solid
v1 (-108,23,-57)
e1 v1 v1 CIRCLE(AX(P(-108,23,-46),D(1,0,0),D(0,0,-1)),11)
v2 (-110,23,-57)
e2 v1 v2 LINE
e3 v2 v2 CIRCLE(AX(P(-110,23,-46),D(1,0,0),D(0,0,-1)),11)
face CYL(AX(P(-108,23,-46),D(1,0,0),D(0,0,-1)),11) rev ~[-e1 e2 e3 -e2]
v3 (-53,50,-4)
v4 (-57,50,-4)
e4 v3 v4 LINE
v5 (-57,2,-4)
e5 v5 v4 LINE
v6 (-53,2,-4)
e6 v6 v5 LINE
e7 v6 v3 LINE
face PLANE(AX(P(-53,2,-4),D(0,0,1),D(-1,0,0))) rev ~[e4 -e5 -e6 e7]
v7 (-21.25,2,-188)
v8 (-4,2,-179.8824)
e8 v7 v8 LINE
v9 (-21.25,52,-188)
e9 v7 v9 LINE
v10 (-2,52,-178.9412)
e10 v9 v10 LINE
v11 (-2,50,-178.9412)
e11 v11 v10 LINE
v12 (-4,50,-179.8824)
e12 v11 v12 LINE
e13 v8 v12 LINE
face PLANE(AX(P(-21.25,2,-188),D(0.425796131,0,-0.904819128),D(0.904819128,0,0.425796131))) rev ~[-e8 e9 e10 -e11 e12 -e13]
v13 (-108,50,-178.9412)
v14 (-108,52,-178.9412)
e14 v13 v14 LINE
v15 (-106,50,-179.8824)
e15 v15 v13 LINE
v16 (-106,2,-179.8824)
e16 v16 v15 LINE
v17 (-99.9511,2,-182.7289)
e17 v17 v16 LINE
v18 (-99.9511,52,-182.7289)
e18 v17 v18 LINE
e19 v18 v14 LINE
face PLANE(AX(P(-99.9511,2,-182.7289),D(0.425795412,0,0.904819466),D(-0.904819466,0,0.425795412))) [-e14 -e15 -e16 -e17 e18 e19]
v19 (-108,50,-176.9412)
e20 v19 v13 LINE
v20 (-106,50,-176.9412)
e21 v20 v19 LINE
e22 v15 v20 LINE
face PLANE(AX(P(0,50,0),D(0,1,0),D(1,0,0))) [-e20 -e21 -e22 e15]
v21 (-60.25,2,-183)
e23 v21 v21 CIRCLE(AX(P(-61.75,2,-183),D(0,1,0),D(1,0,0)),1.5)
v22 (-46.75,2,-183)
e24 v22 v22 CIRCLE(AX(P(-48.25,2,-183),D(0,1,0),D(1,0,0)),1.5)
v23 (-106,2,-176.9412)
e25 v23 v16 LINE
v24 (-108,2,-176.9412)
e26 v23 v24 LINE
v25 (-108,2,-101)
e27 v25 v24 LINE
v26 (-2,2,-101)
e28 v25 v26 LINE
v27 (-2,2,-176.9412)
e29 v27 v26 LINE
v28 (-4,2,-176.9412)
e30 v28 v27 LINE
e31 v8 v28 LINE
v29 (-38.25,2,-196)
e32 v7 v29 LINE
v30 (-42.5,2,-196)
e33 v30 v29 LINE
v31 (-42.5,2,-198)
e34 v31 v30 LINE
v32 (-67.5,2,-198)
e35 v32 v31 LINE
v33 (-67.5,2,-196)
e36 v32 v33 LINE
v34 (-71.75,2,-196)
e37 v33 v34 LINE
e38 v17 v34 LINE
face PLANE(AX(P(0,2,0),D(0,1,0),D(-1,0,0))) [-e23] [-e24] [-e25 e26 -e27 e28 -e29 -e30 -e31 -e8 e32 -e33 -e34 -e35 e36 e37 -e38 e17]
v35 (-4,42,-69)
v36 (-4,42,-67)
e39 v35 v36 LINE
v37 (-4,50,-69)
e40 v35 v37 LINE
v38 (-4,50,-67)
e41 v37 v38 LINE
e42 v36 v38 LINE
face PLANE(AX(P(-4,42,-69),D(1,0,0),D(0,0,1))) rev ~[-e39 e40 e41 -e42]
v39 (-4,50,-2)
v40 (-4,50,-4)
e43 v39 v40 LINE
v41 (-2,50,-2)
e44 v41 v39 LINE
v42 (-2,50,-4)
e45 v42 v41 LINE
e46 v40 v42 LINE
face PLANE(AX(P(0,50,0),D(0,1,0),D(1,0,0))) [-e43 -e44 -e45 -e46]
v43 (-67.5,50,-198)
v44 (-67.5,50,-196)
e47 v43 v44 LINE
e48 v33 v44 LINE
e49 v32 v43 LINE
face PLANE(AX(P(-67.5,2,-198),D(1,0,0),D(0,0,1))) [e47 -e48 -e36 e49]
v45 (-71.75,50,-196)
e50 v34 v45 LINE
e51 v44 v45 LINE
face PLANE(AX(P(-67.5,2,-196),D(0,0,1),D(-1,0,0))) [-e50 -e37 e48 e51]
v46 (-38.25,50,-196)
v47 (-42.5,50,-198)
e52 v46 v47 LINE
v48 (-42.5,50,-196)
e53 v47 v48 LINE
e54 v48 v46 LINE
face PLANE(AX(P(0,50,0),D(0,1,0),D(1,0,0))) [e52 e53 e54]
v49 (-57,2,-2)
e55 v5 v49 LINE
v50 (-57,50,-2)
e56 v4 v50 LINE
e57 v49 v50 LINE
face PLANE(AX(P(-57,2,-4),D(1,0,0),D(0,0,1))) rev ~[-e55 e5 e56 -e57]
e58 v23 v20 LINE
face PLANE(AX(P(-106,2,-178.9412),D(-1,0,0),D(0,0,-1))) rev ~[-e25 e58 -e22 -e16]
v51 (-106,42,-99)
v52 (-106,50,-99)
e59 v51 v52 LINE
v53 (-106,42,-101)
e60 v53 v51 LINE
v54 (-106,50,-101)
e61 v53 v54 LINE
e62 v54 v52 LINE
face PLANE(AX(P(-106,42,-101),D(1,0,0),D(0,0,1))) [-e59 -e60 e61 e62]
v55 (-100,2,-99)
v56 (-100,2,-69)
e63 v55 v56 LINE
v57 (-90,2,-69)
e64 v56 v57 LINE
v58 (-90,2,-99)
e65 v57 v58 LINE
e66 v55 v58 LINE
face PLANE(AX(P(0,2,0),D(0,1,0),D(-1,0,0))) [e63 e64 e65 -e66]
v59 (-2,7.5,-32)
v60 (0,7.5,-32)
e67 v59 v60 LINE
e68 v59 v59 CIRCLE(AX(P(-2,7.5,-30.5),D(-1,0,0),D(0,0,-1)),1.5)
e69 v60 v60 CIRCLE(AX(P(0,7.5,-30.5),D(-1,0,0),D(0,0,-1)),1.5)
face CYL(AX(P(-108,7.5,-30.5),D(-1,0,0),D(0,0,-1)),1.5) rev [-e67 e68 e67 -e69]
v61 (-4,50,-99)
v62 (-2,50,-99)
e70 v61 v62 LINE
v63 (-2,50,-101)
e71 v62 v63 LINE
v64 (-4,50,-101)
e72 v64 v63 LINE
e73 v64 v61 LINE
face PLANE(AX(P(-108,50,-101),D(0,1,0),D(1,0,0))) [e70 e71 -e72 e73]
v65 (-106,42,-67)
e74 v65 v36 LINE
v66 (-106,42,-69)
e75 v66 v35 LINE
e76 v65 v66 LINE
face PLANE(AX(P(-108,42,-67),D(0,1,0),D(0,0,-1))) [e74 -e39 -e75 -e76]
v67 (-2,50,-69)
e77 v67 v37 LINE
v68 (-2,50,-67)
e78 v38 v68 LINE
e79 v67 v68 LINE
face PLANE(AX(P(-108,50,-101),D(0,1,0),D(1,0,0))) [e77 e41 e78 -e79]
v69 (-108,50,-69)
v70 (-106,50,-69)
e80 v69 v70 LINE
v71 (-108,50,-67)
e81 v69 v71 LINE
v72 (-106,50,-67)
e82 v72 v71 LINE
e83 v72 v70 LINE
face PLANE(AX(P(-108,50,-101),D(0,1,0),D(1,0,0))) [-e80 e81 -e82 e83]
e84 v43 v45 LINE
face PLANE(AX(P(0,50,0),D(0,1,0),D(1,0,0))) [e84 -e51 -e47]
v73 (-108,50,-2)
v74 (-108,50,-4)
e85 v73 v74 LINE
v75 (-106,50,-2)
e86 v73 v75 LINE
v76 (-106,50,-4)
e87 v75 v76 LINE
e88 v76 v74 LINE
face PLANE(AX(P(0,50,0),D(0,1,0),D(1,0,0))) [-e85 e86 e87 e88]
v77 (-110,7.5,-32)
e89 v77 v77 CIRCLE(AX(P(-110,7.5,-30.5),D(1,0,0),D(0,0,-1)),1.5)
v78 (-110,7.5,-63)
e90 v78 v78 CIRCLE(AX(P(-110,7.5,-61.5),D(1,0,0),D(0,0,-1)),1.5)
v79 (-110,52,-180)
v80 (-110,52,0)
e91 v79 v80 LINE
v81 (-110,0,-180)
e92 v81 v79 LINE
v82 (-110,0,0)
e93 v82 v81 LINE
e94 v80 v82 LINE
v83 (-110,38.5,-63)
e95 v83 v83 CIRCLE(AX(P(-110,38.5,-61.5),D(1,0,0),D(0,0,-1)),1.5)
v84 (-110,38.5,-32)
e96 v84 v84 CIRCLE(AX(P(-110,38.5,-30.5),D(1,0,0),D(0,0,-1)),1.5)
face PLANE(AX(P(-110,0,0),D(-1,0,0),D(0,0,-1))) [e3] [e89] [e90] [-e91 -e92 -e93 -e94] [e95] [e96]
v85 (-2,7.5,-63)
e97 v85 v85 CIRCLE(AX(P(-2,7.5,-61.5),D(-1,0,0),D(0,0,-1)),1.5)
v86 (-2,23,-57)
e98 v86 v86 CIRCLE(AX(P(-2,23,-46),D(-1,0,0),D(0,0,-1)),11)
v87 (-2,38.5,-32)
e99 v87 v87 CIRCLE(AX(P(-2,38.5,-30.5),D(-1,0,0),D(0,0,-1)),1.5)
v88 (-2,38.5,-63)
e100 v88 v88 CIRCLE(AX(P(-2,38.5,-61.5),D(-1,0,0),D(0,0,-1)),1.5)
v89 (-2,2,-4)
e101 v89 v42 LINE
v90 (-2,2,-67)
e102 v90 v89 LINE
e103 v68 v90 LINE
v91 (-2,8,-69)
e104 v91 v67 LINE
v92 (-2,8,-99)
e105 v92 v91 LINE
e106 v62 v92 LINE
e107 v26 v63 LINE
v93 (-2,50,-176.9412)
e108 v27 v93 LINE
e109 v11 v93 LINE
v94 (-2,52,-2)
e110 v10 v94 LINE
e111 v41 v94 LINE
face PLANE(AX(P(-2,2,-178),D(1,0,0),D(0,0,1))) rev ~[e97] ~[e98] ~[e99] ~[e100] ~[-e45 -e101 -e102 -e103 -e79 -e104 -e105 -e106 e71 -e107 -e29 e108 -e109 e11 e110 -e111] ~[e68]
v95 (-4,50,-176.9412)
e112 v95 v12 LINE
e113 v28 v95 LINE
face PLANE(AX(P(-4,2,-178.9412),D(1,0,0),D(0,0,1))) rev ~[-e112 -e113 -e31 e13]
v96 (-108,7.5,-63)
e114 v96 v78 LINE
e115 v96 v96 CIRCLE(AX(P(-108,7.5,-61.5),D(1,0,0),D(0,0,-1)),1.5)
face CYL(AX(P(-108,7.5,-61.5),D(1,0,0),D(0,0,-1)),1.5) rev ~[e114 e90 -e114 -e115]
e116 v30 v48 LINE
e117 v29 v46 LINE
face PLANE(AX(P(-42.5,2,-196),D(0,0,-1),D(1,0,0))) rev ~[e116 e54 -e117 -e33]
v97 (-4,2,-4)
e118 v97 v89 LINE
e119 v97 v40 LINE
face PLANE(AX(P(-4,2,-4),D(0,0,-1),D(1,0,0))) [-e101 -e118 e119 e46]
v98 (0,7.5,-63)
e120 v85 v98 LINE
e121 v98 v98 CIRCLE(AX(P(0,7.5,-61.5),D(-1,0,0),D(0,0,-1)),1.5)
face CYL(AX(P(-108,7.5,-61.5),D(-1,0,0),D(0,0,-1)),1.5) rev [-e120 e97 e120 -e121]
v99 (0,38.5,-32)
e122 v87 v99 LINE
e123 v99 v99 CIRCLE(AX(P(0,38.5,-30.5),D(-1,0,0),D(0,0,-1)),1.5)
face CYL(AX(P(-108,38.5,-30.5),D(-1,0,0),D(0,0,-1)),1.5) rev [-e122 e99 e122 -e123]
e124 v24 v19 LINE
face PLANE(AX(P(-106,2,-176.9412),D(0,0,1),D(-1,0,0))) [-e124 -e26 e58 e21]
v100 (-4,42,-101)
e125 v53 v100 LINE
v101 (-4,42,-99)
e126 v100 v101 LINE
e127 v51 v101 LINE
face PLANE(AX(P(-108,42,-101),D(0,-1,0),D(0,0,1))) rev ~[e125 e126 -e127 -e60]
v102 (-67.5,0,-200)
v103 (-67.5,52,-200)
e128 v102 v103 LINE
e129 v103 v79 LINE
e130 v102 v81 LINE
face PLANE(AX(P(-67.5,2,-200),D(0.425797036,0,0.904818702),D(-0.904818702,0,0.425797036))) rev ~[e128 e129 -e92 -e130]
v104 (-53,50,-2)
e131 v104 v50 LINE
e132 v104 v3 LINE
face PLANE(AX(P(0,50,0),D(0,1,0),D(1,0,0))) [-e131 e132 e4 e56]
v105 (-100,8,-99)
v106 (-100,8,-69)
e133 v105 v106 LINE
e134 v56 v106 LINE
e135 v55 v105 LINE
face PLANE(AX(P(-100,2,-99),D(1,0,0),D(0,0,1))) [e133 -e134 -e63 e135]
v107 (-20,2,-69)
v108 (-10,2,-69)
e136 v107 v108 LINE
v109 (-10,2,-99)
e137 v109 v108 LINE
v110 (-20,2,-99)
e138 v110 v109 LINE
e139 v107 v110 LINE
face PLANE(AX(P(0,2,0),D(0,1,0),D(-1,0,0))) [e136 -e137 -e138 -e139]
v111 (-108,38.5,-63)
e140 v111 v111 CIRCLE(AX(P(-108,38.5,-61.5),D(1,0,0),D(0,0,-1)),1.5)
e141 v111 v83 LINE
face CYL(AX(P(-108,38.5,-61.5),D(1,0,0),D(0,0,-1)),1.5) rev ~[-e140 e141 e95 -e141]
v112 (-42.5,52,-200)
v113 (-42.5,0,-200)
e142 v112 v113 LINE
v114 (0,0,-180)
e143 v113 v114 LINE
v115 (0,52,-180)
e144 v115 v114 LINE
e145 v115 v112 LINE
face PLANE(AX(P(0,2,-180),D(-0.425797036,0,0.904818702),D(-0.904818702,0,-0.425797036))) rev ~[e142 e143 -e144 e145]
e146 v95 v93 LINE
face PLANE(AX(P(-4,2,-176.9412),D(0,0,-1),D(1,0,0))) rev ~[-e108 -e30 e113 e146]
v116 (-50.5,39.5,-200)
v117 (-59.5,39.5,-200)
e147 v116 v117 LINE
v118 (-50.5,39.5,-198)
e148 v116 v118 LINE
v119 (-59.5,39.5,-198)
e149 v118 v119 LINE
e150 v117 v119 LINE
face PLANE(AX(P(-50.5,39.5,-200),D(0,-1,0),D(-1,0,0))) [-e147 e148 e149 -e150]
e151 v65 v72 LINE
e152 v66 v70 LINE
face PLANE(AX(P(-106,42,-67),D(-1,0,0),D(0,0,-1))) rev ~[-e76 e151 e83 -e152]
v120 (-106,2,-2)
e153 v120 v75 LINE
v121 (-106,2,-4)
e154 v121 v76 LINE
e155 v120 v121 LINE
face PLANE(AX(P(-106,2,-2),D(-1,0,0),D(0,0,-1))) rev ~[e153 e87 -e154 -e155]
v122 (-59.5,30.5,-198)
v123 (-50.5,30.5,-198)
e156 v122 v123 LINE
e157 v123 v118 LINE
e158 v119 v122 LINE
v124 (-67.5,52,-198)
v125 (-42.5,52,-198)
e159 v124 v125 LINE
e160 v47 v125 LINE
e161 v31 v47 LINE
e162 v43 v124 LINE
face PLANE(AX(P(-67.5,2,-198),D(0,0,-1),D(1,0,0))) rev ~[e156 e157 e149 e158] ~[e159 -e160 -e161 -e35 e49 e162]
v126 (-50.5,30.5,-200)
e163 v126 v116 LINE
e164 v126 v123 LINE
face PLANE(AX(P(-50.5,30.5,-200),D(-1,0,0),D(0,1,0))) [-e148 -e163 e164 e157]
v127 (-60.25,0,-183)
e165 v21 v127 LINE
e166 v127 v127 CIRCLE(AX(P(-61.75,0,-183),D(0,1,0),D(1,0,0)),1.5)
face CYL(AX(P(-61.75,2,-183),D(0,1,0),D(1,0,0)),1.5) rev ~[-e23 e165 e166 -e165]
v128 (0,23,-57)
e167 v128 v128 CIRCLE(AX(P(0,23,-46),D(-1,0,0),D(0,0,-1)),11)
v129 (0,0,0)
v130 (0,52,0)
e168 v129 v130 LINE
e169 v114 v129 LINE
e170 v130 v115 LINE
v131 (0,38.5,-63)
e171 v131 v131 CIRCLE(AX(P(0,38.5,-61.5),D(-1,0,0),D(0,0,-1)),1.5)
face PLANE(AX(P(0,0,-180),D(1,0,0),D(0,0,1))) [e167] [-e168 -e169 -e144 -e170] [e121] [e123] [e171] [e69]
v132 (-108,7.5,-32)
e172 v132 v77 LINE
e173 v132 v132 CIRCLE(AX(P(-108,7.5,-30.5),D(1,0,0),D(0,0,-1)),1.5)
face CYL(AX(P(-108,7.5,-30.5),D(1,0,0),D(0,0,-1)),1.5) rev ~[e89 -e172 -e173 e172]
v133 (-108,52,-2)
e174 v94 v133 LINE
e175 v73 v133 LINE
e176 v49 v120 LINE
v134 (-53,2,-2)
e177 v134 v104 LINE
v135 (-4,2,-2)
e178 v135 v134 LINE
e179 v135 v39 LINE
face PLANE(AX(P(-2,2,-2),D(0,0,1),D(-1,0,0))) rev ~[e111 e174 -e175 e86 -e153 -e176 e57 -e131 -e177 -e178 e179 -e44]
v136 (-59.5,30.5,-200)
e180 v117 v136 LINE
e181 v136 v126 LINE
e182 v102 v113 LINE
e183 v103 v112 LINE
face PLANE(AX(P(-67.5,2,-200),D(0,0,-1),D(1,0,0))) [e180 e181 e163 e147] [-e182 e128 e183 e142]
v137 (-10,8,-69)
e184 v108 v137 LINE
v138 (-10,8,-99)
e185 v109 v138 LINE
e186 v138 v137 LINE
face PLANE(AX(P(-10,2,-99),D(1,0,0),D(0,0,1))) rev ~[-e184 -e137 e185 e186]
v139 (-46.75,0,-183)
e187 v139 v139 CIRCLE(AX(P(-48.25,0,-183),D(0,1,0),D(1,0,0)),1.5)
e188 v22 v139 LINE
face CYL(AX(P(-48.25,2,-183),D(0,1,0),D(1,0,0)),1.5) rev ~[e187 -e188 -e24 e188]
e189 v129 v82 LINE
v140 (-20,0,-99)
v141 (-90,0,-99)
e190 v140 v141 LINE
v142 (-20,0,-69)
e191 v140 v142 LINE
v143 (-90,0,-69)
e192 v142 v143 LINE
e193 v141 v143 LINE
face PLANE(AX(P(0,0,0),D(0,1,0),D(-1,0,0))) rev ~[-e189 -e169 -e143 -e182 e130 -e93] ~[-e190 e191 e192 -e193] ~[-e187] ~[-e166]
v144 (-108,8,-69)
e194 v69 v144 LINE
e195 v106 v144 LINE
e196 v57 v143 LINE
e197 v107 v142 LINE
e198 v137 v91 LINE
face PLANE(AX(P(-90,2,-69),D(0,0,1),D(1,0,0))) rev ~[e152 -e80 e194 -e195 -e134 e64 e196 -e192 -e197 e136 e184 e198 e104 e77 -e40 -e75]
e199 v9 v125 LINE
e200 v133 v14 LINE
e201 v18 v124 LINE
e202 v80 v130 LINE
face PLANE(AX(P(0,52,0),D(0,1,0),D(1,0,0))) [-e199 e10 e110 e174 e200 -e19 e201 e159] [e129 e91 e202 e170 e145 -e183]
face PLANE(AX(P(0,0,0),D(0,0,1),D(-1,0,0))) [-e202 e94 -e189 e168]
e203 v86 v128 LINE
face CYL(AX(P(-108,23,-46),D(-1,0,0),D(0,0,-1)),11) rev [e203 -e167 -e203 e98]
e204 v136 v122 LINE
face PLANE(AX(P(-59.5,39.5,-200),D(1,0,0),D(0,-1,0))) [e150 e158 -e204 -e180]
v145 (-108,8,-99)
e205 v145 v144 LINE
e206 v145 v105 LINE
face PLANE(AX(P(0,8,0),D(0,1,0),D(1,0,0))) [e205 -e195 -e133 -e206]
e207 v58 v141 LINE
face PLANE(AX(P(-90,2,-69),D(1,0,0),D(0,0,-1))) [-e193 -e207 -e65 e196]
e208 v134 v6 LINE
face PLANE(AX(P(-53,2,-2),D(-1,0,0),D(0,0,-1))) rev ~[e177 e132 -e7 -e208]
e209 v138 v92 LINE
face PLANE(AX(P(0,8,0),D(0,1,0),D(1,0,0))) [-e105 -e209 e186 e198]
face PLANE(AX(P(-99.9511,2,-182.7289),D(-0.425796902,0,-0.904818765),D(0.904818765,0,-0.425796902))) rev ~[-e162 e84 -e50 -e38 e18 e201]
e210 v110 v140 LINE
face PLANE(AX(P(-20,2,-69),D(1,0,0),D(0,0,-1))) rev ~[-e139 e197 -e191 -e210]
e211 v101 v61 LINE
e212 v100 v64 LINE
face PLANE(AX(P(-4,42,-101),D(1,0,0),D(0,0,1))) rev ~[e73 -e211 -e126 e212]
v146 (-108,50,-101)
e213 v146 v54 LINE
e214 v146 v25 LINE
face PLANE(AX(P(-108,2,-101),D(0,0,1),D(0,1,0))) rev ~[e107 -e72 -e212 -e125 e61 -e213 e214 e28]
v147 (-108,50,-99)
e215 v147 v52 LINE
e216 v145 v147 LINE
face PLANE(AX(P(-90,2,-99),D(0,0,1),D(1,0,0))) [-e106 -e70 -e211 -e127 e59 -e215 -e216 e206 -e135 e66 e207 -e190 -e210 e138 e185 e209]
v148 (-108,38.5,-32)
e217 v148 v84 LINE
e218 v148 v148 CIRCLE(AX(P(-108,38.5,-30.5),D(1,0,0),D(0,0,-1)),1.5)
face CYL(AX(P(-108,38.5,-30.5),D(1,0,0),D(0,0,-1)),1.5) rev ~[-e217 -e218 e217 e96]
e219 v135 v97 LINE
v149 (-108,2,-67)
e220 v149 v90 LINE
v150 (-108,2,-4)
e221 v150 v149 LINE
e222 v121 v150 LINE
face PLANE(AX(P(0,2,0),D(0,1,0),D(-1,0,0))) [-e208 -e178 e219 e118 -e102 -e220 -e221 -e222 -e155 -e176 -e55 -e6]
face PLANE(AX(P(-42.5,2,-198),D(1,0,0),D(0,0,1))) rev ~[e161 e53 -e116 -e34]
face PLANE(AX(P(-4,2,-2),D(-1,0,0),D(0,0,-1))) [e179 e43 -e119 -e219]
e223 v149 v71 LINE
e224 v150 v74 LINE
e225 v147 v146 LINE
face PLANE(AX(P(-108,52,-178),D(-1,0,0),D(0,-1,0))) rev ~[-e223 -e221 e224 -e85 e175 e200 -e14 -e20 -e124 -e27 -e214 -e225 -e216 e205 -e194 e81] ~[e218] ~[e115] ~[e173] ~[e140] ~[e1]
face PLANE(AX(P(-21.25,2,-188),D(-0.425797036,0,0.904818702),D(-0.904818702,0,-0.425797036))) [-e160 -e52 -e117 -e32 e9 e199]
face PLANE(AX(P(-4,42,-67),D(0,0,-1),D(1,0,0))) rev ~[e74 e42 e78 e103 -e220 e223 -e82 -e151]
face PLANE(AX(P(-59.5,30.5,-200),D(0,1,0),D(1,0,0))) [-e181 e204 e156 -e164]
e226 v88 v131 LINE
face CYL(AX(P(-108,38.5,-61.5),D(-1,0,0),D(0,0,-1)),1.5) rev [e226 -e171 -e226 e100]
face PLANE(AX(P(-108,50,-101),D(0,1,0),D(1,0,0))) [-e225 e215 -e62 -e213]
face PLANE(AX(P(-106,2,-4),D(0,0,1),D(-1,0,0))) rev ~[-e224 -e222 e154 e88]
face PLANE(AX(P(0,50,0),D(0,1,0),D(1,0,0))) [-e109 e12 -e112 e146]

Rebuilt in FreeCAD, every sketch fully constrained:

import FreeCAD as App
import Part
import Sketcher
from FreeCAD import Vector
Q = App.Units.Quantity

doc = App.newDocument("Part")
body = doc.addObject("PartDesign::Body", "Body")

sketch1 = body.newObject("Sketcher::SketchObject", "Sketch")
sketch1.AttachmentSupport = (doc.getObject("XZ_Plane"), [""])
sketch1.MapMode = "FlatFace"
sketch1.addGeometry([
    Part.LineSegment(Vector(-110, 0, 0), Vector(0, 0, 0)),
    Part.LineSegment(Vector(0, 0, 0), Vector(0, -180, 0)),
    Part.LineSegment(Vector(0, -180, 0), Vector(-42, -200, 0)),
    Part.LineSegment(Vector(-42, -200, 0), Vector(-68, -200, 0)),
    Part.LineSegment(Vector(-68, -200, 0), Vector(-110, -180, 0)),
    Part.LineSegment(Vector(-110, -180, 0), Vector(-110, 0, 0)),
], False)
sketch1.addConstraint([
    Sketcher.Constraint("Coincident", 0, 2, 1, 1),
    Sketcher.Constraint("Coincident", 1, 2, 2, 1),
    Sketcher.Constraint("Coincident", 2, 2, 3, 1),
    Sketcher.Constraint("Coincident", 3, 2, 4, 1),
    Sketcher.Constraint("Coincident", 4, 2, 5, 1),
    Sketcher.Constraint("Coincident", 5, 2, 0, 1),
    Sketcher.Constraint("Horizontal", 0),
    Sketcher.Constraint("Vertical", 1),
    Sketcher.Constraint("Horizontal", 3),
    Sketcher.Constraint("Vertical", 5),
    Sketcher.Constraint("Coincident", 0, 2, -1, 1),
    Sketcher.Constraint("Horizontal", 1, 2, 4, 2),
    Sketcher.Constraint("Equal", 2, 4),
    Sketcher.Constraint("DistanceX", 3, 2, 3, 1, Q("25 mm")),
    Sketcher.Constraint("DistanceY", 1, 2, 1, 1, Q("180 mm")),
    Sketcher.Constraint("DistanceX", 0, 1, 0, 2, Q("110 mm")),
    Sketcher.Constraint("DistanceY", 2, 2, -1, 1, Q("200 mm")),
])
pad1 = body.newObject("PartDesign::Pad", "Pad")
pad1.Profile = sketch1
pad1.Length = 2
pad1.Reversed = True

sketch2 = body.newObject("Sketcher::SketchObject", "Sketch001")
sketch2.AttachmentSupport = (doc.getObject("XZ_Plane"), [""])
sketch2.MapMode = "FlatFace"
sketch2.AttachmentOffset = App.Placement(Vector(0, 0, -2), App.Rotation())
sketch2.addGeometry([
    Part.LineSegment(Vector(0, 0, 0), Vector(0, -180, 0)),
    Part.LineSegment(Vector(0, -180, 0), Vector(-110, -180, 0)),
    Part.LineSegment(Vector(-110, -180, 0), Vector(-110, 0, 0)),
    Part.LineSegment(Vector(-110, 0, 0), Vector(0, 0, 0)),
    Part.LineSegment(Vector(-2, -178, 0), Vector(-2, -2, 0)),
    Part.LineSegment(Vector(-2, -2, 0), Vector(-108, -2, 0)),
    Part.LineSegment(Vector(-108, -2, 0), Vector(-108, -178, 0)),
    Part.LineSegment(Vector(-108, -178, 0), Vector(-2, -178, 0)),
], False)
sketch2.addConstraint([
    Sketcher.Constraint("Coincident", 0, 2, 1, 1),
    Sketcher.Constraint("Coincident", 1, 2, 2, 1),
    Sketcher.Constraint("Coincident", 2, 2, 3, 1),
    Sketcher.Constraint("Coincident", 3, 2, 0, 1),
    Sketcher.Constraint("Coincident", 4, 2, 5, 1),
    Sketcher.Constraint("Coincident", 5, 2, 6, 1),
    Sketcher.Constraint("Coincident", 6, 2, 7, 1),
    Sketcher.Constraint("Coincident", 7, 2, 4, 1),
    Sketcher.Constraint("Vertical", 0),
    Sketcher.Constraint("Horizontal", 1),
    Sketcher.Constraint("Vertical", 2),
    Sketcher.Constraint("Horizontal", 3),
    Sketcher.Constraint("Vertical", 4),
    Sketcher.Constraint("Horizontal", 5),
    Sketcher.Constraint("Vertical", 6),
    Sketcher.Constraint("Horizontal", 7),
    Sketcher.Constraint("Coincident", 3, 2, -1, 1),
    Sketcher.Constraint("DistanceX", 1, 2, 1, 1, Q("110 mm")),
    Sketcher.Constraint("DistanceX", 5, 2, 5, 1, Q("106 mm")),
    Sketcher.Constraint("DistanceY", 0, 2, 0, 1, Q("180 mm")),
    Sketcher.Constraint("DistanceY", 4, 1, 4, 2, Q("176 mm")),
    Sketcher.Constraint("DistanceX", 4, 2, -1, 1, Q("2 mm")),
    Sketcher.Constraint("DistanceY", 4, 2, -1, 1, Q("2 mm")),
])
pad2 = body.newObject("PartDesign::Pad", "Pad001")
pad2.Profile = sketch2
pad2.Length = 50
pad2.Reversed = True

sketch3 = body.newObject("Sketcher::SketchObject", "Sketch002")
sketch3.AttachmentSupport = (doc.getObject("YZ_Plane"), [""])
sketch3.MapMode = "FlatFace"
sketch3.AttachmentOffset = App.Placement(Vector(0, 0, -108), App.Rotation())
sketch3.addGeometry([
    Part.LineSegment(Vector(42, -69, 0), Vector(42, -67, 0)),
    Part.LineSegment(Vector(42, -67, 0), Vector(2, -67, 0)),
    Part.LineSegment(Vector(2, -67, 0), Vector(2, -69, 0)),
    Part.LineSegment(Vector(2, -69, 0), Vector(42, -69, 0)),
    Part.LineSegment(Vector(42, -99, 0), Vector(2, -99, 0)),
    Part.LineSegment(Vector(2, -99, 0), Vector(2, -101, 0)),
    Part.LineSegment(Vector(2, -101, 0), Vector(42, -101, 0)),
    Part.LineSegment(Vector(42, -101, 0), Vector(42, -99, 0)),
], False)
sketch3.addConstraint([
    Sketcher.Constraint("Coincident", 0, 2, 1, 1),
    Sketcher.Constraint("Coincident", 1, 2, 2, 1),
    Sketcher.Constraint("Coincident", 2, 2, 3, 1),
    Sketcher.Constraint("Coincident", 3, 2, 0, 1),
    Sketcher.Constraint("Coincident", 4, 2, 5, 1),
    Sketcher.Constraint("Coincident", 5, 2, 6, 1),
    Sketcher.Constraint("Coincident", 6, 2, 7, 1),
    Sketcher.Constraint("Coincident", 7, 2, 4, 1),
    Sketcher.Constraint("Vertical", 0),
    Sketcher.Constraint("Horizontal", 1),
    Sketcher.Constraint("Vertical", 2),
    Sketcher.Constraint("Horizontal", 3),
    Sketcher.Constraint("Horizontal", 4),
    Sketcher.Constraint("Vertical", 5),
    Sketcher.Constraint("Horizontal", 6),
    Sketcher.Constraint("Vertical", 7),
    Sketcher.Constraint("Vertical", 2, 2, 4, 2),
    Sketcher.Constraint("Vertical", 3, 2, 6, 2),
    Sketcher.Constraint("Equal", 2, 5),
    Sketcher.Constraint("DistanceX", 1, 2, 1, 1, Q("40 mm")),
    Sketcher.Constraint("DistanceY", 0, 1, 0, 2, Q("2 mm")),
    Sketcher.Constraint("DistanceX", -1, 1, 0, 2, Q("42 mm")),
    Sketcher.Constraint("DistanceY", 0, 2, -1, 1, Q("67 mm")),
    Sketcher.Constraint("DistanceY", 4, 2, -1, 1, Q("99 mm")),
])
pad3 = body.newObject("PartDesign::Pad", "Pad002")
pad3.Profile = sketch3
pad3.Type = "UpToFirst"

sketch4 = body.newObject("Sketcher::SketchObject", "Sketch003")
sketch4.AttachmentSupport = (doc.getObject("XZ_Plane"), [""])
sketch4.MapMode = "FlatFace"
sketch4.AttachmentOffset = App.Placement(Vector(0, 0, -2), App.Rotation())
sketch4.addGeometry([
    Part.LineSegment(Vector(-90, -99, 0), Vector(-90, -69, 0)),
    Part.LineSegment(Vector(-90, -69, 0), Vector(-20, -69, 0)),
    Part.LineSegment(Vector(-20, -69, 0), Vector(-20, -99, 0)),
    Part.LineSegment(Vector(-20, -99, 0), Vector(-90, -99, 0)),
], False)
sketch4.addConstraint([
    Sketcher.Constraint("Coincident", 0, 2, 1, 1),
    Sketcher.Constraint("Coincident", 1, 2, 2, 1),
    Sketcher.Constraint("Coincident", 2, 2, 3, 1),
    Sketcher.Constraint("Coincident", 3, 2, 0, 1),
    Sketcher.Constraint("Vertical", 0),
    Sketcher.Constraint("Horizontal", 1),
    Sketcher.Constraint("Vertical", 2),
    Sketcher.Constraint("Horizontal", 3),
    Sketcher.Constraint("DistanceX", 1, 1, 1, 2, Q("70 mm")),
    Sketcher.Constraint("DistanceY", 0, 1, 0, 2, Q("30 mm")),
    Sketcher.Constraint("DistanceX", 0, 2, -1, 1, Q("90 mm")),
    Sketcher.Constraint("DistanceY", 0, 2, -1, 1, Q("69 mm")),
])
pocket1 = body.newObject("PartDesign::Pocket", "Pocket")
pocket1.Profile = sketch4
pocket1.Type = "UpToFirst"
pocket1.Reversed = True

sketch5 = body.newObject("Sketcher::SketchObject", "Sketch004")
sketch5.AttachmentSupport = (doc.getObject("YZ_Plane"), [""])
sketch5.MapMode = "FlatFace"
sketch5.AttachmentOffset = App.Placement(Vector(0, 0, -108), App.Rotation())
sketch5.addGeometry([
    Part.Circle(Vector(23, -46, 0), Vector(0, 0, 1), 11),
    Part.Circle(Vector(38.5, -30.5, 0), Vector(0, 0, 1), 1.5),
    Part.Circle(Vector(38.5, -61.5, 0), Vector(0, 0, 1), 1.5),
    Part.Circle(Vector(7.5, -30.5, 0), Vector(0, 0, 1), 1.5),
    Part.Circle(Vector(7.5, -61.5, 0), Vector(0, 0, 1), 1.5),
], False)
sketch5.addConstraint([
    Sketcher.Constraint("Equal", 1, 2),
    Sketcher.Constraint("Equal", 2, 3),
    Sketcher.Constraint("Equal", 3, 4),
    Sketcher.Constraint("Horizontal", 1, 3, 3, 3),
    Sketcher.Constraint("Horizontal", 2, 3, 4, 3),
    Sketcher.Constraint("Vertical", 1, 3, 2, 3),
    Sketcher.Constraint("Vertical", 3, 3, 4, 3),
    Sketcher.Constraint("Diameter", 0, Q("22 mm")),
    Sketcher.Constraint("Diameter", 1, Q("3 mm")),
    Sketcher.Constraint("DistanceX", -1, 1, 0, 3, Q("23 mm")),
    Sketcher.Constraint("DistanceY", 0, 3, -1, 1, Q("46 mm")),
    Sketcher.Constraint("DistanceY", 2, 3, 1, 3, Q("31 mm")),
    Sketcher.Constraint("DistanceX", 3, 3, 1, 3, Q("31 mm")),
    Sketcher.Constraint("DistanceX", -1, 1, 1, 3, Q("38.5 mm")),
    Sketcher.Constraint("DistanceY", 1, 3, -1, 1, Q("30.5 mm")),
])
pocket2 = body.newObject("PartDesign::Pocket", "Pocket001")
pocket2.Profile = sketch5
pocket2.Type = "ThroughAll"
pocket2.Midplane = True

sketch6 = body.newObject("Sketcher::SketchObject", "Sketch005")
sketch6.AttachmentSupport = (doc.getObject("XY_Plane"), [""])
sketch6.MapMode = "FlatFace"
sketch6.AttachmentOffset = App.Placement(Vector(0, 0, -178), App.Rotation())
sketch6.addGeometry([
    Part.LineSegment(Vector(-108, 2, 0), Vector(-2, 2, 0)),
    Part.LineSegment(Vector(-2, 2, 0), Vector(-2, 52, 0)),
    Part.LineSegment(Vector(-2, 52, 0), Vector(-108, 52, 0)),
    Part.LineSegment(Vector(-108, 52, 0), Vector(-108, 2, 0)),
], False)
sketch6.addConstraint([
    Sketcher.Constraint("Coincident", 0, 2, 1, 1),
    Sketcher.Constraint("Coincident", 1, 2, 2, 1),
    Sketcher.Constraint("Coincident", 2, 2, 3, 1),
    Sketcher.Constraint("Coincident", 3, 2, 0, 1),
    Sketcher.Constraint("Horizontal", 0),
    Sketcher.Constraint("Vertical", 1),
    Sketcher.Constraint("Horizontal", 2),
    Sketcher.Constraint("Vertical", 3),
    Sketcher.Constraint("DistanceX", 0, 1, 0, 2, Q("106 mm")),
    Sketcher.Constraint("DistanceY", 1, 1, 1, 2, Q("50 mm")),
    Sketcher.Constraint("DistanceX", 0, 2, -1, 1, Q("2 mm")),
    Sketcher.Constraint("DistanceY", -1, 1, 0, 2, Q("2 mm")),
])
pocket3 = body.newObject("PartDesign::Pocket", "Pocket002")
pocket3.Profile = sketch6
pocket3.Type = "UpToFirst"

sketch7 = body.newObject("Sketcher::SketchObject", "Sketch006")
sketch7.AttachmentSupport = (doc.getObject("XZ_Plane"), [""])
sketch7.MapMode = "FlatFace"
sketch7.AttachmentOffset = App.Placement(Vector(0, 0, -2), App.Rotation())
sketch7.addGeometry([
    Part.LineSegment(Vector(-42.5, -200, 0), Vector(-67.5, -200, 0)),
    Part.LineSegment(Vector(-67.5, -200, 0), Vector(-110, -180, 0)),
    Part.LineSegment(Vector(-110, -180, 0), Vector(-108, -180, 0)),
    Part.LineSegment(Vector(-108, -180, 0), Vector(-108, -178.9, 0)),
    Part.LineSegment(Vector(-108, -178.9, 0), Vector(-100, -182.7, 0)),
    Part.LineSegment(Vector(-100, -182.7, 0), Vector(-67.5, -198, 0)),
    Part.LineSegment(Vector(-67.5, -198, 0), Vector(-42.5, -198, 0)),
    Part.LineSegment(Vector(-42.5, -198, 0), Vector(-21.2, -188, 0)),
    Part.LineSegment(Vector(-21.2, -188, 0), Vector(-2, -178.9, 0)),
    Part.LineSegment(Vector(-2, -178.9, 0), Vector(-2, -180, 0)),
    Part.LineSegment(Vector(-2, -180, 0), Vector(0, -180, 0)),
    Part.LineSegment(Vector(0, -180, 0), Vector(-42.5, -200, 0)),
], False)
sketch7.addConstraint([
    Sketcher.Constraint("Coincident", 0, 2, 1, 1),
    Sketcher.Constraint("Coincident", 1, 2, 2, 1),
    Sketcher.Constraint("Coincident", 2, 2, 3, 1),
    Sketcher.Constraint("Coincident", 3, 2, 4, 1),
    Sketcher.Constraint("Coincident", 4, 2, 5, 1),
    Sketcher.Constraint("Coincident", 5, 2, 6, 1),
    Sketcher.Constraint("Coincident", 6, 2, 7, 1),
    Sketcher.Constraint("Coincident", 7, 2, 8, 1),
    Sketcher.Constraint("Coincident", 8, 2, 9, 1),
    Sketcher.Constraint("Coincident", 9, 2, 10, 1),
    Sketcher.Constraint("Coincident", 10, 2, 11, 1),
    Sketcher.Constraint("Coincident", 11, 2, 0, 1),
    Sketcher.Constraint("Horizontal", 0),
    Sketcher.Constraint("Horizontal", 2),
    Sketcher.Constraint("Vertical", 3),
    Sketcher.Constraint("Horizontal", 6),
    Sketcher.Constraint("Vertical", 9),
    Sketcher.Constraint("Horizontal", 10),
    Sketcher.Constraint("PointOnObject", 10, 2, -2),
    Sketcher.Constraint("Parallel", 1, 4),
    Sketcher.Constraint("Parallel", 4, 5),
    Sketcher.Constraint("Parallel", 7, 8),
    Sketcher.Constraint("Parallel", 8, 11),
    Sketcher.Constraint("Horizontal", 3, 2, 8, 2),
    Sketcher.Constraint("Horizontal", 2, 2, 9, 2),
    Sketcher.Constraint("Vertical", 0, 2, 5, 2),
    Sketcher.Constraint("Vertical", 6, 2, 11, 2),
    Sketcher.Constraint("Equal", 2, 10),
    Sketcher.Constraint("DistanceX", 0, 2, 0, 1, Q("25 mm")),
    Sketcher.Constraint("DistanceX", 2, 1, 2, 2, Q("2 mm")),
    Sketcher.Constraint("DistanceY", 0, 2, -1, 1, Q("200 mm")),
    Sketcher.Constraint("DistanceX", 1, 2, -1, 1, Q("110 mm")),
    Sketcher.Constraint("DistanceY", 1, 2, -1, 1, Q("180 mm")),
    Sketcher.Constraint("DistanceY", 5, 2, -1, 1, Q("198 mm")),
    Sketcher.Constraint("DistanceY", 7, 2, -1, 1, Q("188 mm")),
    Sketcher.Constraint("DistanceX", 4, 2, -1, 1, Q("99.951 mm")),
])
pad4 = body.newObject("PartDesign::Pad", "Pad003")
pad4.Profile = sketch7
pad4.Length = 50
pad4.Reversed = True

sketch8 = body.newObject("Sketcher::SketchObject", "Sketch007")
sketch8.AttachmentSupport = (doc.getObject("XY_Plane"), [""])
sketch8.MapMode = "FlatFace"
sketch8.AttachmentOffset = App.Placement(Vector(0, 0, -200), App.Rotation())
sketch8.addGeometry([
    Part.LineSegment(Vector(-60, 40, 0), Vector(-50, 40, 0)),
    Part.LineSegment(Vector(-50, 40, 0), Vector(-50, 30, 0)),
    Part.LineSegment(Vector(-50, 30, 0), Vector(-60, 30, 0)),
    Part.LineSegment(Vector(-60, 30, 0), Vector(-60, 40, 0)),
], False)
sketch8.addConstraint([
    Sketcher.Constraint("Coincident", 0, 2, 1, 1),
    Sketcher.Constraint("Coincident", 1, 2, 2, 1),
    Sketcher.Constraint("Coincident", 2, 2, 3, 1),
    Sketcher.Constraint("Coincident", 3, 2, 0, 1),
    Sketcher.Constraint("Horizontal", 0),
    Sketcher.Constraint("Vertical", 1),
    Sketcher.Constraint("Horizontal", 2),
    Sketcher.Constraint("Vertical", 3),
    Sketcher.Constraint("Equal", 2, 1),
    Sketcher.Constraint("DistanceX", 0, 1, 0, 2, Q("9 mm")),
    Sketcher.Constraint("DistanceX", 0, 2, -1, 1, Q("50.5 mm")),
    Sketcher.Constraint("DistanceY", -1, 1, 0, 2, Q("39.5 mm")),
])
pocket4 = body.newObject("PartDesign::Pocket", "Pocket003")
pocket4.Profile = sketch8
pocket4.Length = 2
pocket4.Reversed = True

sketch9 = body.newObject("Sketcher::SketchObject", "Sketch008")
sketch9.AttachmentSupport = (doc.getObject("XZ_Plane"), [""])
sketch9.MapMode = "FlatFace"
sketch9.AttachmentOffset = App.Placement(Vector(0, 0, -2), App.Rotation())
sketch9.addGeometry([
    Part.LineSegment(Vector(-108, -4, 0), Vector(-108, -2, 0)),
    Part.LineSegment(Vector(-108, -2, 0), Vector(-106, -2, 0)),
    Part.LineSegment(Vector(-106, -2, 0), Vector(-106, -4, 0)),
    Part.LineSegment(Vector(-106, -4, 0), Vector(-108, -4, 0)),
    Part.LineSegment(Vector(-57, -4, 0), Vector(-57, -2, 0)),
    Part.LineSegment(Vector(-57, -2, 0), Vector(-53, -2, 0)),
    Part.LineSegment(Vector(-53, -2, 0), Vector(-53, -4, 0)),
    Part.LineSegment(Vector(-53, -4, 0), Vector(-57, -4, 0)),
    Part.LineSegment(Vector(-108, -178.9, 0), Vector(-108, -176.9, 0)),
    Part.LineSegment(Vector(-108, -176.9, 0), Vector(-106, -176.9, 0)),
    Part.LineSegment(Vector(-106, -176.9, 0), Vector(-106, -179.9, 0)),
    Part.LineSegment(Vector(-106, -179.9, 0), Vector(-108, -178.9, 0)),
    Part.LineSegment(Vector(-4, -4, 0), Vector(-4, -2, 0)),
    Part.LineSegment(Vector(-4, -2, 0), Vector(-2, -2, 0)),
    Part.LineSegment(Vector(-2, -2, 0), Vector(-2, -4, 0)),
    Part.LineSegment(Vector(-2, -4, 0), Vector(-4, -4, 0)),
    Part.LineSegment(Vector(-67.5, -198, 0), Vector(-71.8, -196, 0)),
    Part.LineSegment(Vector(-71.8, -196, 0), Vector(-67.5, -196, 0)),
    Part.LineSegment(Vector(-67.5, -196, 0), Vector(-67.5, -198, 0)),
    Part.LineSegment(Vector(-38.2, -196, 0), Vector(-42.5, -198, 0)),
    Part.LineSegment(Vector(-42.5, -198, 0), Vector(-42.5, -196, 0)),
    Part.LineSegment(Vector(-42.5, -196, 0), Vector(-38.2, -196, 0)),
    Part.LineSegment(Vector(-4, -176.9, 0), Vector(-2, -176.9, 0)),
    Part.LineSegment(Vector(-2, -176.9, 0), Vector(-2, -178.9, 0)),
    Part.LineSegment(Vector(-2, -178.9, 0), Vector(-4, -179.9, 0)),
    Part.LineSegment(Vector(-4, -179.9, 0), Vector(-4, -176.9, 0)),
], False)
sketch9.addConstraint([
    Sketcher.Constraint("Coincident", 0, 2, 1, 1),
    Sketcher.Constraint("Coincident", 1, 2, 2, 1),
    Sketcher.Constraint("Coincident", 2, 2, 3, 1),
    Sketcher.Constraint("Coincident", 3, 2, 0, 1),
    Sketcher.Constraint("Coincident", 4, 2, 5, 1),
    Sketcher.Constraint("Coincident", 5, 2, 6, 1),
    Sketcher.Constraint("Coincident", 6, 2, 7, 1),
    Sketcher.Constraint("Coincident", 7, 2, 4, 1),
    Sketcher.Constraint("Coincident", 8, 2, 9, 1),
    Sketcher.Constraint("Coincident", 9, 2, 10, 1),
    Sketcher.Constraint("Coincident", 10, 2, 11, 1),
    Sketcher.Constraint("Coincident", 11, 2, 8, 1),
    Sketcher.Constraint("Coincident", 12, 2, 13, 1),
    Sketcher.Constraint("Coincident", 13, 2, 14, 1),
    Sketcher.Constraint("Coincident", 14, 2, 15, 1),
    Sketcher.Constraint("Coincident", 15, 2, 12, 1),
    Sketcher.Constraint("Coincident", 16, 2, 17, 1),
    Sketcher.Constraint("Coincident", 17, 2, 18, 1),
    Sketcher.Constraint("Coincident", 18, 2, 16, 1),
    Sketcher.Constraint("Coincident", 19, 2, 20, 1),
    Sketcher.Constraint("Coincident", 20, 2, 21, 1),
    Sketcher.Constraint("Coincident", 21, 2, 19, 1),
    Sketcher.Constraint("Coincident", 22, 2, 23, 1),
    Sketcher.Constraint("Coincident", 23, 2, 24, 1),
    Sketcher.Constraint("Coincident", 24, 2, 25, 1),
    Sketcher.Constraint("Coincident", 25, 2, 22, 1),
    Sketcher.Constraint("Vertical", 0),
    Sketcher.Constraint("Horizontal", 1),
    Sketcher.Constraint("Vertical", 2),
    Sketcher.Constraint("Horizontal", 3),
    Sketcher.Constraint("Vertical", 4),
    Sketcher.Constraint("Horizontal", 5),
    Sketcher.Constraint("Vertical", 6),
    Sketcher.Constraint("Horizontal", 7),
    Sketcher.Constraint("Vertical", 8),
    Sketcher.Constraint("Horizontal", 9),
    Sketcher.Constraint("Vertical", 10),
    Sketcher.Constraint("Vertical", 12),
    Sketcher.Constraint("Horizontal", 13),
    Sketcher.Constraint("Vertical", 14),
    Sketcher.Constraint("Horizontal", 15),
    Sketcher.Constraint("Horizontal", 17),
    Sketcher.Constraint("Vertical", 18),
    Sketcher.Constraint("Vertical", 20),
    Sketcher.Constraint("Horizontal", 21),
    Sketcher.Constraint("Horizontal", 22),
    Sketcher.Constraint("Vertical", 23),
    Sketcher.Constraint("Vertical", 25),
    Sketcher.Constraint("Parallel", 11, 16),
    Sketcher.Constraint("Parallel", 19, 24),
    Sketcher.Constraint("Horizontal", 1, 2, 4, 2),
    Sketcher.Constraint("Horizontal", 3, 2, 6, 2),
    Sketcher.Constraint("Horizontal", 5, 2, 12, 2),
    Sketcher.Constraint("Horizontal", 7, 2, 14, 2),
    Sketcher.Constraint("Horizontal", 18, 2, 19, 2),
    Sketcher.Constraint("Horizontal", 17, 2, 20, 2),
    Sketcher.Constraint("Horizontal", 9, 2, 22, 2),
    Sketcher.Constraint("Horizontal", 11, 2, 23, 2),
    Sketcher.Constraint("Horizontal", 10, 2, 24, 2),
    Sketcher.Constraint("Vertical", 3, 2, 8, 2),
    Sketcher.Constraint("Vertical", 2, 2, 9, 2),
    Sketcher.Constraint("Vertical", 14, 2, 22, 2),
    Sketcher.Constraint("Vertical", 15, 2, 24, 2),
    Sketcher.Constraint("Equal", 9, 13),
    Sketcher.Constraint("Equal", 22, 0),
    Sketcher.Constraint("Equal", 6, 8),
    Sketcher.Constraint("Equal", 14, 18),
    Sketcher.Constraint("DistanceX", 1, 1, 1, 2, Q("2 mm")),
    Sketcher.Constraint("DistanceX", 5, 1, 5, 2, Q("4 mm")),
    Sketcher.Constraint("DistanceX", 0, 2, -1, 1, Q("108 mm")),
    Sketcher.Constraint("DistanceY", 0, 2, -1, 1, Q("2 mm")),
    Sketcher.Constraint("DistanceX", 4, 2, -1, 1, Q("57 mm")),
    Sketcher.Constraint("DistanceX", 12, 2, -1, 1, Q("4 mm")),
    Sketcher.Constraint("DistanceY", 16, 2, -1, 1, Q("196 mm")),
    Sketcher.Constraint("Angle", 11, Q("154.799 deg")),
    Sketcher.Constraint("DistanceX", 18, 2, 19, 2, Q("25 mm")),
    Sketcher.Constraint("DistanceX", 17, 2, -1, 1, Q("67.5 mm")),
    Sketcher.Constraint("DistanceY", 8, 2, -1, 1, Q("176.9412 mm")),
])
pad5 = body.newObject("PartDesign::Pad", "Pad004")
pad5.Profile = sketch9
pad5.Length = 48
pad5.Reversed = True

sketch10 = body.newObject("Sketcher::SketchObject", "Sketch009")
sketch10.AttachmentSupport = (doc.getObject("XZ_Plane"), [""])
sketch10.MapMode = "FlatFace"
sketch10.AttachmentOffset = App.Placement(Vector(0, 0, -42), App.Rotation())
sketch10.addGeometry([
    Part.LineSegment(Vector(-106, -101, 0), Vector(-108, -101, 0)),
    Part.LineSegment(Vector(-108, -101, 0), Vector(-108, -99, 0)),
    Part.LineSegment(Vector(-108, -99, 0), Vector(-106, -99, 0)),
    Part.LineSegment(Vector(-106, -99, 0), Vector(-106, -101, 0)),
    Part.LineSegment(Vector(-2, -101, 0), Vector(-4, -101, 0)),
    Part.LineSegment(Vector(-4, -101, 0), Vector(-4, -99, 0)),
    Part.LineSegment(Vector(-4, -99, 0), Vector(-2, -99, 0)),
    Part.LineSegment(Vector(-2, -99, 0), Vector(-2, -101, 0)),
    Part.LineSegment(Vector(-108, -67, 0), Vector(-106, -67, 0)),
    Part.LineSegment(Vector(-106, -67, 0), Vector(-106, -69, 0)),
    Part.LineSegment(Vector(-106, -69, 0), Vector(-108, -69, 0)),
    Part.LineSegment(Vector(-108, -69, 0), Vector(-108, -67, 0)),
    Part.LineSegment(Vector(-2, -67, 0), Vector(-2, -69, 0)),
    Part.LineSegment(Vector(-2, -69, 0), Vector(-4, -69, 0)),
    Part.LineSegment(Vector(-4, -69, 0), Vector(-4, -67, 0)),
    Part.LineSegment(Vector(-4, -67, 0), Vector(-2, -67, 0)),
], False)
sketch10.addConstraint([
    Sketcher.Constraint("Coincident", 0, 2, 1, 1),
    Sketcher.Constraint("Coincident", 1, 2, 2, 1),
    Sketcher.Constraint("Coincident", 2, 2, 3, 1),
    Sketcher.Constraint("Coincident", 3, 2, 0, 1),
    Sketcher.Constraint("Coincident", 4, 2, 5, 1),
    Sketcher.Constraint("Coincident", 5, 2, 6, 1),
    Sketcher.Constraint("Coincident", 6, 2, 7, 1),
    Sketcher.Constraint("Coincident", 7, 2, 4, 1),
    Sketcher.Constraint("Coincident", 8, 2, 9, 1),
    Sketcher.Constraint("Coincident", 9, 2, 10, 1),
    Sketcher.Constraint("Coincident", 10, 2, 11, 1),
    Sketcher.Constraint("Coincident", 11, 2, 8, 1),
    Sketcher.Constraint("Coincident", 12, 2, 13, 1),
    Sketcher.Constraint("Coincident", 13, 2, 14, 1),
    Sketcher.Constraint("Coincident", 14, 2, 15, 1),
    Sketcher.Constraint("Coincident", 15, 2, 12, 1),
    Sketcher.Constraint("Horizontal", 0),
    Sketcher.Constraint("Vertical", 1),
    Sketcher.Constraint("Horizontal", 2),
    Sketcher.Constraint("Vertical", 3),
    Sketcher.Constraint("Horizontal", 4),
    Sketcher.Constraint("Vertical", 5),
    Sketcher.Constraint("Horizontal", 6),
    Sketcher.Constraint("Vertical", 7),
    Sketcher.Constraint("Horizontal", 8),
    Sketcher.Constraint("Vertical", 9),
    Sketcher.Constraint("Horizontal", 10),
    Sketcher.Constraint("Vertical", 11),
    Sketcher.Constraint("Vertical", 12),
    Sketcher.Constraint("Horizontal", 13),
    Sketcher.Constraint("Vertical", 14),
    Sketcher.Constraint("Horizontal", 15),
    Sketcher.Constraint("Horizontal", 3, 2, 4, 2),
    Sketcher.Constraint("Horizontal", 2, 2, 5, 2),
    Sketcher.Constraint("Horizontal", 10, 2, 12, 2),
    Sketcher.Constraint("Horizontal", 11, 2, 14, 2),
    Sketcher.Constraint("Vertical", 3, 2, 8, 2),
    Sketcher.Constraint("Vertical", 1, 2, 10, 2),
    Sketcher.Constraint("Vertical", 7, 2, 12, 2),
    Sketcher.Constraint("Vertical", 5, 2, 13, 2),
    Sketcher.Constraint("Equal", 2, 4),
    Sketcher.Constraint("Equal", 15, 1),
    Sketcher.Constraint("Equal", 7, 9),
    Sketcher.Constraint("DistanceX", 0, 2, 0, 1, Q("2 mm")),
    Sketcher.Constraint("DistanceX", 0, 2, -1, 1, Q("108 mm")),
    Sketcher.Constraint("DistanceY", 0, 2, -1, 1, Q("101 mm")),
    Sketcher.Constraint("DistanceX", 4, 2, -1, 1, Q("4 mm")),
    Sketcher.Constraint("DistanceY", 8, 2, -1, 1, Q("67 mm")),
])
pad6 = body.newObject("PartDesign::Pad", "Pad005")
pad6.Profile = sketch10
pad6.Length = 8
pad6.Reversed = True

sketch11 = body.newObject("Sketcher::SketchObject", "Sketch010")
sketch11.AttachmentSupport = (doc.getObject("XZ_Plane"), [""])
sketch11.MapMode = "FlatFace"
sketch11.AttachmentOffset = App.Placement(Vector(0, 0, -2), App.Rotation())
sketch11.addGeometry([
    Part.LineSegment(Vector(-2, -99, 0), Vector(-10, -99, 0)),
    Part.LineSegment(Vector(-10, -99, 0), Vector(-10, -69, 0)),
    Part.LineSegment(Vector(-10, -69, 0), Vector(-2, -69, 0)),
    Part.LineSegment(Vector(-2, -69, 0), Vector(-2, -99, 0)),
    Part.LineSegment(Vector(-100, -99, 0), Vector(-108, -99, 0)),
    Part.LineSegment(Vector(-108, -99, 0), Vector(-108, -69, 0)),
    Part.LineSegment(Vector(-108, -69, 0), Vector(-100, -69, 0)),
    Part.LineSegment(Vector(-100, -69, 0), Vector(-100, -99, 0)),
], False)
sketch11.addConstraint([
    Sketcher.Constraint("Coincident", 0, 2, 1, 1),
    Sketcher.Constraint("Coincident", 1, 2, 2, 1),
    Sketcher.Constraint("Coincident", 2, 2, 3, 1),
    Sketcher.Constraint("Coincident", 3, 2, 0, 1),
    Sketcher.Constraint("Coincident", 4, 2, 5, 1),
    Sketcher.Constraint("Coincident", 5, 2, 6, 1),
    Sketcher.Constraint("Coincident", 6, 2, 7, 1),
    Sketcher.Constraint("Coincident", 7, 2, 4, 1),
    Sketcher.Constraint("Horizontal", 0),
    Sketcher.Constraint("Vertical", 1),
    Sketcher.Constraint("Horizontal", 2),
    Sketcher.Constraint("Vertical", 3),
    Sketcher.Constraint("Horizontal", 4),
    Sketcher.Constraint("Vertical", 5),
    Sketcher.Constraint("Horizontal", 6),
    Sketcher.Constraint("Vertical", 7),
    Sketcher.Constraint("Horizontal", 3, 2, 4, 2),
    Sketcher.Constraint("Horizontal", 2, 2, 5, 2),
    Sketcher.Constraint("Equal", 2, 4),
    Sketcher.Constraint("DistanceX", 0, 2, 0, 1, Q("8 mm")),
    Sketcher.Constraint("DistanceY", 1, 1, 1, 2, Q("30 mm")),
    Sketcher.Constraint("DistanceX", 0, 2, -1, 1, Q("10 mm")),
    Sketcher.Constraint("DistanceY", 0, 2, -1, 1, Q("99 mm")),
    Sketcher.Constraint("DistanceX", 4, 2, -1, 1, Q("108 mm")),
])
pad7 = body.newObject("PartDesign::Pad", "Pad006")
pad7.Profile = sketch11
pad7.Length = 6
pad7.Reversed = True

sketch12 = body.newObject("Sketcher::SketchObject", "Sketch011")
sketch12.AttachmentSupport = (doc.getObject("XZ_Plane"), [""])
sketch12.MapMode = "FlatFace"
sketch12.AttachmentOffset = App.Placement(Vector(0, 0, -2), App.Rotation())
sketch12.addGeometry([
    Part.Circle(Vector(-61.8, -183, 0), Vector(0, 0, 1), 1.5),
    Part.Circle(Vector(-48.2, -183, 0), Vector(0, 0, 1), 1.5),
], False)
sketch12.addConstraint([
    Sketcher.Constraint("Equal", 0, 1),
    Sketcher.Constraint("Horizontal", 0, 3, 1, 3),
    Sketcher.Constraint("Diameter", 0, Q("3 mm")),
    Sketcher.Constraint("DistanceY", 0, 3, -1, 1, Q("183 mm")),
    Sketcher.Constraint("DistanceX", 0, 3, 1, 3, Q("13.5 mm")),
    Sketcher.Constraint("DistanceX", 0, 3, -1, 1, Q("61.75 mm")),
])
pocket5 = body.newObject("PartDesign::Pocket", "Pocket004")
pocket5.Profile = sketch12
pocket5.Type = "ThroughAll"
pocket5.Reversed = True

doc.recompute()
